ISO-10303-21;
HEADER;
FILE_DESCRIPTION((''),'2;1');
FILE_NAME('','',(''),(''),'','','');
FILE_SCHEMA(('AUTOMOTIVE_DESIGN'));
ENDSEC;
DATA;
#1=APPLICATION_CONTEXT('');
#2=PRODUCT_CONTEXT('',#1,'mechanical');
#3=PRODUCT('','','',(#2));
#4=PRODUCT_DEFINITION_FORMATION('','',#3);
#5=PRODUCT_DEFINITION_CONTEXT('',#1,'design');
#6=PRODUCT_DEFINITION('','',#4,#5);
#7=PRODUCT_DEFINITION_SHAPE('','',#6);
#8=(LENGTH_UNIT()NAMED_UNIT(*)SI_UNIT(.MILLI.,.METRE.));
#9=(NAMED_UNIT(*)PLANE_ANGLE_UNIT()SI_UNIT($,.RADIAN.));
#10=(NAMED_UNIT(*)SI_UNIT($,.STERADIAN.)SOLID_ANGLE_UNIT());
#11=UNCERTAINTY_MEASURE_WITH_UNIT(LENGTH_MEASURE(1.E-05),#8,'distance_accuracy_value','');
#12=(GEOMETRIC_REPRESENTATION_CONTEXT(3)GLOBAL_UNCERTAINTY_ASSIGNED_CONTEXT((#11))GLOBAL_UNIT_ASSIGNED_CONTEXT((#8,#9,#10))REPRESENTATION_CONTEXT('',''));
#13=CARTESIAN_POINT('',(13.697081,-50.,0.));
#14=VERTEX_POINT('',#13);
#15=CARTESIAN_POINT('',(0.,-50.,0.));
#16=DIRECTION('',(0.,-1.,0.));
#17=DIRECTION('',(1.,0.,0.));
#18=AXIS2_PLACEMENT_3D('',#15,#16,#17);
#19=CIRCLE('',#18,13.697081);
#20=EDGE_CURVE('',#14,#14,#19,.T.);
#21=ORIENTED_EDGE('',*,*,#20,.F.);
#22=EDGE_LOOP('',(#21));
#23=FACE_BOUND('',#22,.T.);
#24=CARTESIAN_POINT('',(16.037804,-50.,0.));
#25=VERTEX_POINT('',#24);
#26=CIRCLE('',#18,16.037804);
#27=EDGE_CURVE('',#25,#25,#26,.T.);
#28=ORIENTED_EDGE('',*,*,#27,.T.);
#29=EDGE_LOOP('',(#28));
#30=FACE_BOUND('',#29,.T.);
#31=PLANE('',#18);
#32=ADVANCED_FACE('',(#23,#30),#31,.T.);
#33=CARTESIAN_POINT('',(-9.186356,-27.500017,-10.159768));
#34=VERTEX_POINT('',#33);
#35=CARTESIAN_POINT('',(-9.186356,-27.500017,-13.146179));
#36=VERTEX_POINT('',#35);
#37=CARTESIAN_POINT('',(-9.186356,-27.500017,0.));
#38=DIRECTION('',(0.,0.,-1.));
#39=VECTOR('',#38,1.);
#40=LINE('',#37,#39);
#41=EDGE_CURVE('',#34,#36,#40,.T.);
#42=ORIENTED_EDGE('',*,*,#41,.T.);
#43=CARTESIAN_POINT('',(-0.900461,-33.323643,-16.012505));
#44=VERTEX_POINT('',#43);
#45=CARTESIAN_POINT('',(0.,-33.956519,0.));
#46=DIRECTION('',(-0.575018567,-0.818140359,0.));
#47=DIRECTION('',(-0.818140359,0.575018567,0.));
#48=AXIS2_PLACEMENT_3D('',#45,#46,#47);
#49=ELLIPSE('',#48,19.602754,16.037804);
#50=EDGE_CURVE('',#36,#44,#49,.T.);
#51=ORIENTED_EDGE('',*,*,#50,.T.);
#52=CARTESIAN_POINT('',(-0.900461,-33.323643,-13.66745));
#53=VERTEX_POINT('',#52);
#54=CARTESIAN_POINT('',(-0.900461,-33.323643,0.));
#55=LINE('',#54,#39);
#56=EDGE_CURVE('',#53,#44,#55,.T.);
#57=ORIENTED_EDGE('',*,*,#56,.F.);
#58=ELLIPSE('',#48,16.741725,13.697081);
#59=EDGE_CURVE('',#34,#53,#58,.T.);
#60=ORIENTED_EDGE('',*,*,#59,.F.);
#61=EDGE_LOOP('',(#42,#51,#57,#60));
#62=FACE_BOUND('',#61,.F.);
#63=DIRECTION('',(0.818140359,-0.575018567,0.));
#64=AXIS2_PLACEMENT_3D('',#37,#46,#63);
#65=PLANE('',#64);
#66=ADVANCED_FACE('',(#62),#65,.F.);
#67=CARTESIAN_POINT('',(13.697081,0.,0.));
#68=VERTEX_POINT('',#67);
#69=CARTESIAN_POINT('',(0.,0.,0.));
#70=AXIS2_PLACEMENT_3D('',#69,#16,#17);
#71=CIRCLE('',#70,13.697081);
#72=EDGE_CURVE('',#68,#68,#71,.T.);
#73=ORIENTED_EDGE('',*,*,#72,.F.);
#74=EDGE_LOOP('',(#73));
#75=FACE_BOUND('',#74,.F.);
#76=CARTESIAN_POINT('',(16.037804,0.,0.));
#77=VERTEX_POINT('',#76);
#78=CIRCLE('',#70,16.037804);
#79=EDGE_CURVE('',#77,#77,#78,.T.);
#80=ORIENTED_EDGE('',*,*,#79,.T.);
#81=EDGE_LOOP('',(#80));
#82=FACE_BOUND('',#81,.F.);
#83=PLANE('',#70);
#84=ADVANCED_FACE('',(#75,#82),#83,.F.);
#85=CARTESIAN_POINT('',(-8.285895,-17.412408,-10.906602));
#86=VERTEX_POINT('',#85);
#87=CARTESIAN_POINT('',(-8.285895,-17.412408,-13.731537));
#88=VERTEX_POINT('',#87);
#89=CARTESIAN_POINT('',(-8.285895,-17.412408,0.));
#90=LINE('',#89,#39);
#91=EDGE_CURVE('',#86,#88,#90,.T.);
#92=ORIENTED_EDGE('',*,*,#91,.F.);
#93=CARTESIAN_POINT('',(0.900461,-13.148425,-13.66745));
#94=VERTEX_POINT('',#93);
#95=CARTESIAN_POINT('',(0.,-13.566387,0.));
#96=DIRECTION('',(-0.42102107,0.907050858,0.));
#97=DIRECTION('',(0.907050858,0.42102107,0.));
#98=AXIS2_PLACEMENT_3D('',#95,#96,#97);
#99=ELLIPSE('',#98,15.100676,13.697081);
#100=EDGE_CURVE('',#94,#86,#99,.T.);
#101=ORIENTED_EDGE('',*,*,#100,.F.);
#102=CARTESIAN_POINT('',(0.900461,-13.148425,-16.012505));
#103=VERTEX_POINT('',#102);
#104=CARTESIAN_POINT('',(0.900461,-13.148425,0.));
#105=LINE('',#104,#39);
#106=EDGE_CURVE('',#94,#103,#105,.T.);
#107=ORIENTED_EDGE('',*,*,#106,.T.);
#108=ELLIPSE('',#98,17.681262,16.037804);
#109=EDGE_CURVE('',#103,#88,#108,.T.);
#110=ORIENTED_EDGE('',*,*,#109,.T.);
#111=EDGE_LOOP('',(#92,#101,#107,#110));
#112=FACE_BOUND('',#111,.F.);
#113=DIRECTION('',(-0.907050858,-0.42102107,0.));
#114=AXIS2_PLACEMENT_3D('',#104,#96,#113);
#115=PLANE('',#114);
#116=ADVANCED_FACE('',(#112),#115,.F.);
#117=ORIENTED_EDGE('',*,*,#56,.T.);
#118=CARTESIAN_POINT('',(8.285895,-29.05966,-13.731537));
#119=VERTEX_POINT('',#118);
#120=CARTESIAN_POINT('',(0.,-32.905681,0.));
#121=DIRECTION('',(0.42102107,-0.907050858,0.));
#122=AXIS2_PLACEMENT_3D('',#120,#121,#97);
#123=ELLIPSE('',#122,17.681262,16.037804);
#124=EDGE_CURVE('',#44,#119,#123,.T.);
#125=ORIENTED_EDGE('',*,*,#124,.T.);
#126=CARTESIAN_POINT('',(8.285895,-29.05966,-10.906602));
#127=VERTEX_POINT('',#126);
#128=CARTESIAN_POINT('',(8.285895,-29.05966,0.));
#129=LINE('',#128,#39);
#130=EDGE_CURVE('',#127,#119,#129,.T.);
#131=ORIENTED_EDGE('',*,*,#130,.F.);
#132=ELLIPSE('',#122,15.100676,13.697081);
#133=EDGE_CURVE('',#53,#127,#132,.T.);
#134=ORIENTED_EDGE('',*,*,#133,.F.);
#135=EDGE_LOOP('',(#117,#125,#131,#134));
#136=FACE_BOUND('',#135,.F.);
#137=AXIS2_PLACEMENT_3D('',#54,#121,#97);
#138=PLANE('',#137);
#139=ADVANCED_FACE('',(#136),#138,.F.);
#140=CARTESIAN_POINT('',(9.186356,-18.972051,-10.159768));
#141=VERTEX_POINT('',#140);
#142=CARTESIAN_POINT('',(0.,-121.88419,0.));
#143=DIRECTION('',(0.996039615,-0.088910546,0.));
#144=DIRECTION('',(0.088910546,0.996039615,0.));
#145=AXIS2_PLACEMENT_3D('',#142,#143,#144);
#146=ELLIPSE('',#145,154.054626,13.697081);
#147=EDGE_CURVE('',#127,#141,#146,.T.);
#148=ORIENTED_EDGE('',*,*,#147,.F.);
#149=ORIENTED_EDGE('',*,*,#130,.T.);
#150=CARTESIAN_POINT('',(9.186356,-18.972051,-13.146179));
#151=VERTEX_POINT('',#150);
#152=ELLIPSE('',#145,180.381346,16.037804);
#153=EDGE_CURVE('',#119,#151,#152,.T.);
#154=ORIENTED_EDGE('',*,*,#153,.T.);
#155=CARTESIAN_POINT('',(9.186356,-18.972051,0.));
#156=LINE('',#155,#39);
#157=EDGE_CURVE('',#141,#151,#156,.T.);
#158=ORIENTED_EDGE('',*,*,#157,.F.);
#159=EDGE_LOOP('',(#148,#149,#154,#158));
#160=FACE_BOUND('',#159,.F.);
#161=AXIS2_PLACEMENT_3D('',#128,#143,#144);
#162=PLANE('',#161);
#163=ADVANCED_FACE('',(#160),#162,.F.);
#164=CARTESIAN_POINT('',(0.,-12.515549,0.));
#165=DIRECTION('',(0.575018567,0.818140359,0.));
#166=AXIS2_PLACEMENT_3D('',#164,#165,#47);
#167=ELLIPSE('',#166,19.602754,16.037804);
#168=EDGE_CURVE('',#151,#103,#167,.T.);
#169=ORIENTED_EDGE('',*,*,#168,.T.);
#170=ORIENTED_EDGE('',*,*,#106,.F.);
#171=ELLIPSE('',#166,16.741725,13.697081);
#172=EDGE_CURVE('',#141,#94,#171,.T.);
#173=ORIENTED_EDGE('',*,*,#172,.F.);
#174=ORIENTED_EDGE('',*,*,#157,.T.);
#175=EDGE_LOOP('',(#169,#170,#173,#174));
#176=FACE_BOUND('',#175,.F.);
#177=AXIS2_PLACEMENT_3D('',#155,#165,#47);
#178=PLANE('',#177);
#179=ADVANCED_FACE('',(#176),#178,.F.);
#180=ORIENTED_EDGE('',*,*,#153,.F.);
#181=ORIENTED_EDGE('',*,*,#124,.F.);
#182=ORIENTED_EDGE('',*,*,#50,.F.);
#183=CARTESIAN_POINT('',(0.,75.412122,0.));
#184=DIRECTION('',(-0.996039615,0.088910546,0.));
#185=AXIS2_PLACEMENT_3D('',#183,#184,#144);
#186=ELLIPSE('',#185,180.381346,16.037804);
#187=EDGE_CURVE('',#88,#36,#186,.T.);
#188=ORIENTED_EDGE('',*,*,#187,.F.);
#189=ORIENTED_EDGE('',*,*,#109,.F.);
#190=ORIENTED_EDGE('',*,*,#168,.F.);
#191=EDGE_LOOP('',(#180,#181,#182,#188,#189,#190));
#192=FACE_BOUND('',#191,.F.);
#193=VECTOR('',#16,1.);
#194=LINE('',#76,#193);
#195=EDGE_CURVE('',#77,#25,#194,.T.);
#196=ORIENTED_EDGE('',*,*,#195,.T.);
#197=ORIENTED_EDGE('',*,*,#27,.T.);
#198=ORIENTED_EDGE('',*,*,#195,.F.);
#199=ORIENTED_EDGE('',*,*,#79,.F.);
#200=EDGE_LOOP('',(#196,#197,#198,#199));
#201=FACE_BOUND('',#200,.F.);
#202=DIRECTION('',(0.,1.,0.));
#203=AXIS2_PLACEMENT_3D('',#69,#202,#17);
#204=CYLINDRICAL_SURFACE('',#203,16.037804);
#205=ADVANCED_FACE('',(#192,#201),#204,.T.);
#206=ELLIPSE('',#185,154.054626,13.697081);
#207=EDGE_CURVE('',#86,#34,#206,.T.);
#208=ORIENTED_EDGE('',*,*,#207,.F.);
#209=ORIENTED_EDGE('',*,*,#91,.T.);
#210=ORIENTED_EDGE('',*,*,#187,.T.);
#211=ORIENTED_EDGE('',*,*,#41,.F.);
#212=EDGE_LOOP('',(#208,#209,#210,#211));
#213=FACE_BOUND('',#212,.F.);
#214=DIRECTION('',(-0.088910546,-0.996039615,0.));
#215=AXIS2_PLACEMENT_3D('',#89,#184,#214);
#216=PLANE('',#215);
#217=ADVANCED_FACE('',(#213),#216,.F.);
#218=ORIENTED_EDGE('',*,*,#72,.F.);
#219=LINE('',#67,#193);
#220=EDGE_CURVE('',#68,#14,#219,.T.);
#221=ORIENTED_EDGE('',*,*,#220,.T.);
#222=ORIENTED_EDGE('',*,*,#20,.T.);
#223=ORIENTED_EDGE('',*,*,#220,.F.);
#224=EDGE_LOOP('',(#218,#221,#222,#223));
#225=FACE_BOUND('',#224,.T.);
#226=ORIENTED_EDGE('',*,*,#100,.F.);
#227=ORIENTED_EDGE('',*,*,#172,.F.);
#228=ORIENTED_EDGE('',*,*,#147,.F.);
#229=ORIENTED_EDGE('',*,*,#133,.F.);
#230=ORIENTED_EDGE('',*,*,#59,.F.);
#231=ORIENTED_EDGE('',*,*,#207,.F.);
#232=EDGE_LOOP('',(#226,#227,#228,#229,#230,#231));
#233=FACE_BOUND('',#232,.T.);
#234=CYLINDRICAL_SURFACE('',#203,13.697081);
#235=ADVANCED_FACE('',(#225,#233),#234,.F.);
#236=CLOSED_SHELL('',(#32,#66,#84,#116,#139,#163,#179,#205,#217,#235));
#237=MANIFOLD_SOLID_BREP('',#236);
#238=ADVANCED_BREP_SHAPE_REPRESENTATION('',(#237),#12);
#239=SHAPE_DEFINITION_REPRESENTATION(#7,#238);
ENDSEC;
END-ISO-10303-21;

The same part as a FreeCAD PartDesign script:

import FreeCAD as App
import Part
import Sketcher

doc = App.newDocument("Part")
body = doc.addObject("PartDesign::Body", "Body")

# Sketch on XZ plane
sketch1 = body.newObject("Sketcher::SketchObject", "Sketch")
sketch1.AttachmentSupport = (doc.getObject("XZ_Plane"), [""])
sketch1.MapMode = "FlatFace"
sketch1.addGeometry([
    Part.Circle(App.Vector(0, 0, 0), App.Vector(0, 0, 1), 16.037804),
    Part.Circle(App.Vector(0, 0, 0), App.Vector(0, 0, 1), 13.697081),
], False)
sketch1.addConstraint([
    Sketcher.Constraint("Coincident", 0, 3, -1, 1),
    Sketcher.Constraint("Coincident", 1, 3, -1, 1),
    Sketcher.Constraint("Diameter", 0, 32.075608),
    Sketcher.Constraint("Diameter", 1, 27.394162),
])
pad1 = body.newObject("PartDesign::Pad", "Pad")
pad1.Profile = sketch1
pad1.Length = 50

# Sketch on XY plane
sketch2 = body.newObject("Sketcher::SketchObject", "Sketch001")
sketch2.AttachmentSupport = (doc.getObject("XY_Plane"), [""])
sketch2.MapMode = "FlatFace"
sketch2.addGeometry([
    Part.LineSegment(App.Vector(8.285895, -29.05966, 0), App.Vector(9.186356, -18.972051, 0)),  # 0
    Part.LineSegment(App.Vector(9.186356, -18.972051, 0), App.Vector(0.900461, -13.148425, 0)),  # 1
    Part.LineSegment(App.Vector(0.900461, -13.148425, 0), App.Vector(-8.285895, -17.412408, 0)),  # 2
    Part.LineSegment(App.Vector(-8.285895, -17.412408, 0), App.Vector(-9.186356, -27.500017, 0)),  # 3
    Part.LineSegment(App.Vector(-9.186356, -27.500017, 0), App.Vector(-0.900461, -33.323643, 0)),  # 4
    Part.LineSegment(App.Vector(-0.900461, -33.323643, 0), App.Vector(8.285895, -29.05966, 0)),  # 5
], False)
sketch2.addConstraint([
    Sketcher.Constraint("Coincident", 0, 2, 1, 1),
    Sketcher.Constraint("Coincident", 1, 2, 2, 1),
    Sketcher.Constraint("Coincident", 2, 2, 3, 1),
    Sketcher.Constraint("Coincident", 3, 2, 4, 1),
    Sketcher.Constraint("Coincident", 4, 2, 5, 1),
    Sketcher.Constraint("Coincident", 5, 2, 0, 1),
    Sketcher.Constraint("Parallel", 0, 3),
    Sketcher.Constraint("Parallel", 1, 4),
    Sketcher.Constraint("Parallel", 2, 5),
    Sketcher.Constraint("Equal", 0, 1),
    Sketcher.Constraint("Equal", 1, 2),
    Sketcher.Constraint("Equal", 2, 3),
    Sketcher.Constraint("Distance", 0, 10.127719),
    Sketcher.Constraint("DistanceY", 0, 2, -1, 1, 18.972051),
    Sketcher.Constraint("DistanceX", -1, 1, 1, 2, 0.900461),
    Sketcher.Constraint("DistanceX", 4, 2, -1, 1, 0.900461),
    Sketcher.Constraint("DistanceY", 5, 2, -1, 1, 29.05966),
    Sketcher.Constraint("DistanceX", 2, 2, 0, 2, 17.472251),
])
pocket1 = body.newObject("PartDesign::Pocket", "Pocket")
pocket1.Profile = sketch2
pocket1.Length = 18

doc.recompute()
